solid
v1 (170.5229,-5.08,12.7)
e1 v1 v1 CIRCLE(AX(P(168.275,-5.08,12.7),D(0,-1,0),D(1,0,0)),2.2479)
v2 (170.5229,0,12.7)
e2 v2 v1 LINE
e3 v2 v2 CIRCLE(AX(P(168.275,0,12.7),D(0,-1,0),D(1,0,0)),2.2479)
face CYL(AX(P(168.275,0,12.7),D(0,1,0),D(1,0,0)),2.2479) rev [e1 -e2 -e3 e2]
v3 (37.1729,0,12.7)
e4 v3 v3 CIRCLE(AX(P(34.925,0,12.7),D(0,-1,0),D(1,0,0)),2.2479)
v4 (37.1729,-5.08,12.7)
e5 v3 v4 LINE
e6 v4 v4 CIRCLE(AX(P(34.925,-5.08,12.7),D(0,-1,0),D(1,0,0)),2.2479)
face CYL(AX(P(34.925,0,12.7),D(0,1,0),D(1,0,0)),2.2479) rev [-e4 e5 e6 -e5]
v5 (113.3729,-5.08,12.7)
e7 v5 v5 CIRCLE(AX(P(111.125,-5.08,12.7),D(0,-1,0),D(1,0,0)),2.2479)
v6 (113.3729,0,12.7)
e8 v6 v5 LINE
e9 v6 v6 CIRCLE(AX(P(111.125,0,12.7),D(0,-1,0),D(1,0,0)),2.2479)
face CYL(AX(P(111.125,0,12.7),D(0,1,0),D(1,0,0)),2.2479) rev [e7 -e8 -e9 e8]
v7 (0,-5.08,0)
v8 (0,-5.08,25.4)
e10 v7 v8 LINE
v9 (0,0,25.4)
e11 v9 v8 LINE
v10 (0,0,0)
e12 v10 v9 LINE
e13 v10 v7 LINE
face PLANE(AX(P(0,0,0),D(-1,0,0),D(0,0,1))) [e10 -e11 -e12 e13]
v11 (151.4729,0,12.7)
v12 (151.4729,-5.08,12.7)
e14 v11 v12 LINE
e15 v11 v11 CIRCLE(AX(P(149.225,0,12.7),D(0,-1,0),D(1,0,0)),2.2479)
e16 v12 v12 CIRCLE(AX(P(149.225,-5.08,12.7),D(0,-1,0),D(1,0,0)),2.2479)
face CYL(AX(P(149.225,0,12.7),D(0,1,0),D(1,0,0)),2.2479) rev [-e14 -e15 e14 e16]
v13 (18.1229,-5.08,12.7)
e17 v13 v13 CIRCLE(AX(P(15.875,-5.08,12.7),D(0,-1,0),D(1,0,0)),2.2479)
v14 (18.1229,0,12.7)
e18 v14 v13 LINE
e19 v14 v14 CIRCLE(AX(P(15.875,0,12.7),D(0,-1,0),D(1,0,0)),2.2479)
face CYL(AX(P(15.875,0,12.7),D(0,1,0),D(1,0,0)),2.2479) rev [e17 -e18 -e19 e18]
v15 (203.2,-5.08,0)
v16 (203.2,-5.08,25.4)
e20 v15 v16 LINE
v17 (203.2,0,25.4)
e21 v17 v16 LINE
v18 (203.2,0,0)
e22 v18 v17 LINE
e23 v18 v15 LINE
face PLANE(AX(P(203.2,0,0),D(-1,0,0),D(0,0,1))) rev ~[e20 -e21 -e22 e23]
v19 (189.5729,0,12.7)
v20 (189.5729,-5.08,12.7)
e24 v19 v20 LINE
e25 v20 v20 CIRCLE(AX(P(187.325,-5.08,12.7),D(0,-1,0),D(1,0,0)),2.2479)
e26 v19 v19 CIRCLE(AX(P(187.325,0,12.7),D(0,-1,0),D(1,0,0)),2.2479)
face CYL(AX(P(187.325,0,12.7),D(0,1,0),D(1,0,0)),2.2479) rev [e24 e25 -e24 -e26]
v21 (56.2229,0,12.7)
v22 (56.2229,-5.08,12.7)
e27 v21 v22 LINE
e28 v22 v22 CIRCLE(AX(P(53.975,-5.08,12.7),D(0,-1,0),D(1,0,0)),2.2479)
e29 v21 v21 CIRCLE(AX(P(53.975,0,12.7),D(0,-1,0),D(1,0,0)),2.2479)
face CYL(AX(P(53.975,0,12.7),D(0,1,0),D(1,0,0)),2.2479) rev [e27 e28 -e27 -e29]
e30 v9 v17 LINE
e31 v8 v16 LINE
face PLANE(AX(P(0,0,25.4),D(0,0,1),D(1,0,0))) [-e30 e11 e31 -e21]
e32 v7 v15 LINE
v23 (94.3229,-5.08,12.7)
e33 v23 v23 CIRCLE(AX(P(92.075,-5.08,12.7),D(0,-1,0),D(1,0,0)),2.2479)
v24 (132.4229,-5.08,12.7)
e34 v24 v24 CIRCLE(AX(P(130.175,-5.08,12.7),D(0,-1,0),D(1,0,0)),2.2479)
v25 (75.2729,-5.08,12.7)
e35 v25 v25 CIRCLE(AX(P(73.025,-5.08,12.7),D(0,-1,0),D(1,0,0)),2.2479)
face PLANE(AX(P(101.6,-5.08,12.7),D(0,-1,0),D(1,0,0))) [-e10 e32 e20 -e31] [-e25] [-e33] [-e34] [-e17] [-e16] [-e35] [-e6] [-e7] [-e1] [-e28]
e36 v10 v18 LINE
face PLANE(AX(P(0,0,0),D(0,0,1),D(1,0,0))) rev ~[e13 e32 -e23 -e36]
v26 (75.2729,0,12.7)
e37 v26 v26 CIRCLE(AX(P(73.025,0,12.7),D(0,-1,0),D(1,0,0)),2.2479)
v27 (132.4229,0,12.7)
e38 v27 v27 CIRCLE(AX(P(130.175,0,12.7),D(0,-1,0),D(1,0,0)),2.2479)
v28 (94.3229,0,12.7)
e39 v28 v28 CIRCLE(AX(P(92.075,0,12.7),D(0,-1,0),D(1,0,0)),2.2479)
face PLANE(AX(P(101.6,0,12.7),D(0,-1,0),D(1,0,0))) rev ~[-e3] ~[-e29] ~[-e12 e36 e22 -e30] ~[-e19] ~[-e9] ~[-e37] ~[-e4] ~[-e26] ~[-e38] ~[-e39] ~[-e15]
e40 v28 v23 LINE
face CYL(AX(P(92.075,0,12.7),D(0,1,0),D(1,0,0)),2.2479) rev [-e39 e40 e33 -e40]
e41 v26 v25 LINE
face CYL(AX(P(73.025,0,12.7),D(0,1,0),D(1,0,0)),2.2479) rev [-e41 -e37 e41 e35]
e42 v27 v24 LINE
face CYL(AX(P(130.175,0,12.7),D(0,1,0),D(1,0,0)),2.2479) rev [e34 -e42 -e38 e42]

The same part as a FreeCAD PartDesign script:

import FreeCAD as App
import Part
import Sketcher

V = App.Vector
Q = App.Units.Quantity

doc = App.newDocument("Part")
body = doc.addObject("PartDesign::Body", "Body")

# Sketch on XZ plane
sketch1 = body.newObject("Sketcher::SketchObject", "Sketch")
sketch1.AttachmentSupport = (doc.getObject("XZ_Plane"), [""])
sketch1.MapMode = "FlatFace"
sketch1.addGeometry([
    Part.LineSegment(V(0, 25.4, 0), V(0, 0, 0)),  # 0
    Part.LineSegment(V(0, 0, 0), V(203.2, 0, 0)),  # 1
    Part.LineSegment(V(203.2, 0, 0), V(203.2, 25.4, 0)),  # 2
    Part.LineSegment(V(203.2, 25.4, 0), V(0, 25.4, 0)),  # 3
    Part.Circle(V(15.9, 12.7, 0), V(0, 0, 1), 2.2),  # 4
    Part.Circle(V(34.9, 12.7, 0), V(0, 0, 1), 2.2),  # 5
    Part.Circle(V(54, 12.7, 0), V(0, 0, 1), 2.2),  # 6
    Part.Circle(V(73, 12.7, 0), V(0, 0, 1), 2.2),  # 7
    Part.Circle(V(92.1, 12.7, 0), V(0, 0, 1), 2.2),  # 8
    Part.Circle(V(111.1, 12.7, 0), V(0, 0, 1), 2.2),  # 9
    Part.Circle(V(130.2, 12.7, 0), V(0, 0, 1), 2.2),  # 10
    Part.Circle(V(149.2, 12.7, 0), V(0, 0, 1), 2.2),  # 11
    Part.Circle(V(168.3, 12.7, 0), V(0, 0, 1), 2.2),  # 12
    Part.Circle(V(187.3, 12.7, 0), V(0, 0, 1), 2.2),  # 13
], False)
sketch1.addConstraint([
    Sketcher.Constraint("Coincident", 0, 2, 1, 1),
    Sketcher.Constraint("Coincident", 1, 2, 2, 1),
    Sketcher.Constraint("Coincident", 2, 2, 3, 1),
    Sketcher.Constraint("Coincident", 3, 2, 0, 1),
    Sketcher.Constraint("Vertical", 0),
    Sketcher.Constraint("Horizontal", 1),
    Sketcher.Constraint("Vertical", 2),
    Sketcher.Constraint("Horizontal", 3),
    Sketcher.Constraint("Coincident", 0, 2, -1, 1),
    Sketcher.Constraint("Equal", 4, 5),
    Sketcher.Constraint("Equal", 5, 6),
    Sketcher.Constraint("Equal", 6, 7),
    Sketcher.Constraint("Equal", 7, 8),
    Sketcher.Constraint("Equal", 8, 9),
    Sketcher.Constraint("Equal", 9, 10),
    Sketcher.Constraint("Equal", 10, 11),
    Sketcher.Constraint("Equal", 11, 12),
    Sketcher.Constraint("Equal", 12, 13),
    Sketcher.Constraint("Horizontal", 4, 3, 5, 3),
    Sketcher.Constraint("Horizontal", 5, 3, 6, 3),
    Sketcher.Constraint("Horizontal", 6, 3, 7, 3),
    Sketcher.Constraint("Horizontal", 7, 3, 8, 3),
    Sketcher.Constraint("Horizontal", 8, 3, 9, 3),
    Sketcher.Constraint("Horizontal", 9, 3, 10, 3),
    Sketcher.Constraint("Horizontal", 10, 3, 11, 3),
    Sketcher.Constraint("Horizontal", 11, 3, 12, 3),
    Sketcher.Constraint("Horizontal", 12, 3, 13, 3),
    Sketcher.Constraint("DistanceX", 1, 1, 1, 2, Q("8 in")),
    Sketcher.Constraint("DistanceY", 0, 2, 0, 1, Q("1 in")),
    Sketcher.Constraint("Diameter", 4, Q("0.177 in")),
    Sketcher.Constraint("DistanceX", 4, 3, 8, 3, Q("3 in")),
    Sketcher.Constraint("DistanceX", 5, 3, 9, 3, Q("3 in")),
    Sketcher.Constraint("DistanceX", 6, 3, 10, 3, Q("3 in")),
    Sketcher.Constraint("DistanceX", 7, 3, 11, 3, Q("3 in")),
    Sketcher.Constraint("DistanceX", 8, 3, 12, 3, Q("3 in")),
    Sketcher.Constraint("DistanceX", 9, 3, 13, 3, Q("3 in")),
    Sketcher.Constraint("DistanceY", -1, 1, 4, 3, Q("0.5 in")),
    Sketcher.Constraint("DistanceX", 4, 3, 6, 3, Q("1.5 in")),
    Sketcher.Constraint("DistanceX", 5, 3, 7, 3, Q("1.5 in")),
    Sketcher.Constraint("DistanceX", 4, 3, 5, 3, Q("0.75 in")),
    Sketcher.Constraint("DistanceX", -1, 1, 4, 3, Q("0.625 in")),
])
pad1 = body.newObject("PartDesign::Pad", "Pad")
pad1.Profile = sketch1
pad1.Length = Q("0.2 in")

doc.recompute()
